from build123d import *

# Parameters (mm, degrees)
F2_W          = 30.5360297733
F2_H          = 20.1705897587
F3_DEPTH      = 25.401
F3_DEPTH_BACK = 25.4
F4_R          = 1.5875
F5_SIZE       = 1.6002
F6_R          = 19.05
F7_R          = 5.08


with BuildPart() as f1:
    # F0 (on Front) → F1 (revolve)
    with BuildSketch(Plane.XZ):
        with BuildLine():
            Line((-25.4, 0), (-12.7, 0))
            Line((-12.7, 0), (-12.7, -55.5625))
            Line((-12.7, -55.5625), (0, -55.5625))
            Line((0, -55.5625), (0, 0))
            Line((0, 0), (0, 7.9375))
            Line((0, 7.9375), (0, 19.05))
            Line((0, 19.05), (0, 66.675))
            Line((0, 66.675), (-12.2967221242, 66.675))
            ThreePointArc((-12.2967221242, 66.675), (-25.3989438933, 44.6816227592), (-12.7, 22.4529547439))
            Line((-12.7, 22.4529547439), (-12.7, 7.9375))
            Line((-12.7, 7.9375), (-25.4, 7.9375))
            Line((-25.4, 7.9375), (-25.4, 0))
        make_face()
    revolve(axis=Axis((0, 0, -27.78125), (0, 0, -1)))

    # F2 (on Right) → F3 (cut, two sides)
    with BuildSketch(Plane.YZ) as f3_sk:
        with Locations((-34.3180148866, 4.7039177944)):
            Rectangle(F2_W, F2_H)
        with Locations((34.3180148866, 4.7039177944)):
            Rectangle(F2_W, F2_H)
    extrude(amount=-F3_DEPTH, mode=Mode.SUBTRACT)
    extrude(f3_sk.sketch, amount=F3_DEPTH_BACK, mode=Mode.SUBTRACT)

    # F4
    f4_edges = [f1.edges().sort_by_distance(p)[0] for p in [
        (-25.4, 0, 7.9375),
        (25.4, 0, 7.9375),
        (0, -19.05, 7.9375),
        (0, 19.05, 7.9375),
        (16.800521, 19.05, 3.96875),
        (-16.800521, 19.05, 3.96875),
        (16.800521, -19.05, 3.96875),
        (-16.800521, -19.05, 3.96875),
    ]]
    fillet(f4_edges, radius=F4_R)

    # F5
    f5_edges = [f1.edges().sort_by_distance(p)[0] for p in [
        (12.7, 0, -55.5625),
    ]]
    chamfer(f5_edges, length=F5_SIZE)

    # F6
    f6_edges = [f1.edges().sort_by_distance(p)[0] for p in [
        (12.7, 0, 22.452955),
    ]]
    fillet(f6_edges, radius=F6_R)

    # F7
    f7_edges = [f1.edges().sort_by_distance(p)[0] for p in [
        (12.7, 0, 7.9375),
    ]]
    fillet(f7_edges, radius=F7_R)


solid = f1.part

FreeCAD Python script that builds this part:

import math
import FreeCAD as App
import Part
import Sketcher
Q = App.Units.Quantity


def edges_at(feature, points):
    """Names of the edges that pass closest to the given points."""
    edges = feature.Shape.Edges
    near = lambda p: min(range(len(edges)), key=lambda i: edges[i].distToShape(Part.Vertex(*p))[0])
    return sorted({f"Edge{near(p) + 1}" for p in points})


def add_polygon(sketch, points):
    """Adds a closed chain of lines whose ends are joined by coincident constraints."""
    first, n = sketch.GeometryCount, len(points)
    for a, b in zip(points, points[1:] + points[:1]):
        sketch.addGeometry(Part.LineSegment(App.Vector(*a, 0), App.Vector(*b, 0)), False)
    for i in range(n):
        sketch.addConstraint(Sketcher.Constraint("Coincident", first + i, 2, first + (i + 1) % n, 1))

doc = App.newDocument("Part")
body = doc.addObject("PartDesign::Body", "Body")

# Sketch on XZ plane
sketch1 = body.newObject("Sketcher::SketchObject", "Sketch")
sketch1.AttachmentSupport = (doc.getObject("XZ_Plane"), [""])
sketch1.MapMode = "FlatFace"
sketch1.addGeometry([
    Part.LineSegment(App.Vector(-25, 0, 0), App.Vector(-13, 0, 0)),  # 0
    Part.LineSegment(App.Vector(-13, 0, 0), App.Vector(-13, -56, 0)),  # 1
    Part.LineSegment(App.Vector(-13, -56, 0), App.Vector(0, -56, 0)),  # 2
    Part.LineSegment(App.Vector(0, -56, 0), App.Vector(0, 67, 0)),  # 3
    Part.LineSegment(App.Vector(0, 67, 0), App.Vector(-12, 67, 0)),  # 4
    Part.ArcOfCircle(Part.Circle(App.Vector(0, 44, 0), App.Vector(0, 0, 1), 25), math.radians(119), math.radians(240)),  # 5
    Part.LineSegment(App.Vector(-13, 22, 0), App.Vector(-13, 8, 0)),  # 6
    Part.LineSegment(App.Vector(-13, 8, 0), App.Vector(-25, 8, 0)),  # 7
    Part.LineSegment(App.Vector(-25, 8, 0), App.Vector(-25, 0, 0)),  # 8
], False)
sketch1.addConstraint([
    Sketcher.Constraint("Coincident", 0, 2, 1, 1),
    Sketcher.Constraint("Coincident", 1, 2, 2, 1),
    Sketcher.Constraint("Coincident", 2, 2, 3, 1),
    Sketcher.Constraint("Coincident", 3, 2, 4, 1),
    Sketcher.Constraint("Coincident", 4, 2, 5, 1),
    Sketcher.Constraint("Coincident", 5, 2, 6, 1),
    Sketcher.Constraint("Coincident", 6, 2, 7, 1),
    Sketcher.Constraint("Coincident", 7, 2, 8, 1),
    Sketcher.Constraint("Coincident", 8, 2, 0, 1),
    Sketcher.Constraint("Horizontal", 0),
    Sketcher.Constraint("Vertical", 1),
    Sketcher.Constraint("Horizontal", 2),
    Sketcher.Constraint("Vertical", 3),
    Sketcher.Constraint("Horizontal", 4),
    Sketcher.Constraint("Vertical", 6),
    Sketcher.Constraint("Horizontal", 7),
    Sketcher.Constraint("Vertical", 8),
    Sketcher.Constraint("PointOnObject", 5, 3, -2),
    Sketcher.Constraint("PointOnObject", 0, 2, -1),
    Sketcher.Constraint("PointOnObject", 2, 2, -2),
    Sketcher.Constraint("Vertical", 1, 2, 5, 2),
    Sketcher.Constraint("Equal", 0, 2),
    Sketcher.Constraint("Radius", 5, Q("1 in")),
    Sketcher.Constraint("DistanceX", 0, 1, 0, 2, Q("0.5 in")),
    Sketcher.Constraint("DistanceY", 1, 2, 1, 1, Q("2.1875 in")),
    Sketcher.Constraint("DistanceY", 3, 1, 3, 2, Q("4.8125 in")),
    Sketcher.Constraint("DistanceY", 8, 2, 8, 1, Q("0.3125 in")),
    Sketcher.Constraint("DistanceY", -1, 1, 5, 3, Q("1.75 in")),
])
revolution = body.newObject("PartDesign::Revolution", "Revolution")
revolution.Profile = sketch1
revolution.ReferenceAxis = (sketch1, ["V_Axis"])
revolution.Angle = 360

# Sketch on YZ plane
sketch2 = body.newObject("Sketcher::SketchObject", "Sketch001")
sketch2.AttachmentSupport = (doc.getObject("YZ_Plane"), [""])
sketch2.MapMode = "FlatFace"
add_polygon(sketch2, [(-50, 15), (-50, -5), (-19, -5), (-19, 15)])  # lines 0-3
add_polygon(sketch2, [(19, 15), (19, -5), (50, -5), (50, 15)])  # lines 4-7
sketch2.addConstraint([
    Sketcher.Constraint("Vertical", 0),
    Sketcher.Constraint("Horizontal", 1),
    Sketcher.Constraint("Vertical", 2),
    Sketcher.Constraint("Horizontal", 3),
    Sketcher.Constraint("Vertical", 4),
    Sketcher.Constraint("Horizontal", 5),
    Sketcher.Constraint("Vertical", 6),
    Sketcher.Constraint("Horizontal", 7),
    Sketcher.Constraint("Symmetric", 1, 2, 4, 2, -2),
    Sketcher.Constraint("Symmetric", 3, 2, 6, 2, -2),
    Sketcher.Constraint("DistanceX", 1, 2, 4, 2, Q("1.5 in")),
    Sketcher.Constraint("DistanceX", 1, 1, 1, 2, Q("30.53603 mm")),
    Sketcher.Constraint("DistanceY", 0, 2, 0, 1, Q("20.17059 mm")),
    Sketcher.Constraint("DistanceY", 0, 2, -1, 1, Q("5.381377 mm")),
])
pocket1 = body.newObject("PartDesign::Pocket", "Pocket")
pocket1.Profile = sketch2
pocket1.Type = "ThroughAll"
pocket1.Midplane = True
doc.recompute()

fillet = body.newObject("PartDesign::Fillet", "Fillet")
fillet.Base = (pocket1, edges_at(pocket1, [
    (-25.4, 0, 7.938),
    (25.4, 0, 7.938),
    (0, -19.05, 7.938),
    (0, 19.05, 7.938),
    (16.801, 19.05, 3.969),
    (-16.801, 19.05, 3.969),
    (16.801, -19.05, 3.969),
    (-16.801, -19.05, 3.969),
]))
fillet.Radius = Q("0.0625 in")
doc.recompute()

chamfer = body.newObject("PartDesign::Chamfer", "Chamfer")
chamfer.Base = (fillet, edges_at(fillet, [(12.7, 0, -55.562)]))
chamfer.Size = Q("0.063 in")
doc.recompute()

fillet2 = body.newObject("PartDesign::Fillet", "Fillet001")
fillet2.Base = (chamfer, edges_at(chamfer, [(12.7, 0, 22.453)]))
fillet2.Radius = Q("0.75 in")
doc.recompute()

fillet3 = body.newObject("PartDesign::Fillet", "Fillet002")
fillet3.Base = (fillet2, edges_at(fillet2, [(12.7, 0, 7.938)]))
fillet3.Radius = Q("0.2 in")

doc.recompute()
